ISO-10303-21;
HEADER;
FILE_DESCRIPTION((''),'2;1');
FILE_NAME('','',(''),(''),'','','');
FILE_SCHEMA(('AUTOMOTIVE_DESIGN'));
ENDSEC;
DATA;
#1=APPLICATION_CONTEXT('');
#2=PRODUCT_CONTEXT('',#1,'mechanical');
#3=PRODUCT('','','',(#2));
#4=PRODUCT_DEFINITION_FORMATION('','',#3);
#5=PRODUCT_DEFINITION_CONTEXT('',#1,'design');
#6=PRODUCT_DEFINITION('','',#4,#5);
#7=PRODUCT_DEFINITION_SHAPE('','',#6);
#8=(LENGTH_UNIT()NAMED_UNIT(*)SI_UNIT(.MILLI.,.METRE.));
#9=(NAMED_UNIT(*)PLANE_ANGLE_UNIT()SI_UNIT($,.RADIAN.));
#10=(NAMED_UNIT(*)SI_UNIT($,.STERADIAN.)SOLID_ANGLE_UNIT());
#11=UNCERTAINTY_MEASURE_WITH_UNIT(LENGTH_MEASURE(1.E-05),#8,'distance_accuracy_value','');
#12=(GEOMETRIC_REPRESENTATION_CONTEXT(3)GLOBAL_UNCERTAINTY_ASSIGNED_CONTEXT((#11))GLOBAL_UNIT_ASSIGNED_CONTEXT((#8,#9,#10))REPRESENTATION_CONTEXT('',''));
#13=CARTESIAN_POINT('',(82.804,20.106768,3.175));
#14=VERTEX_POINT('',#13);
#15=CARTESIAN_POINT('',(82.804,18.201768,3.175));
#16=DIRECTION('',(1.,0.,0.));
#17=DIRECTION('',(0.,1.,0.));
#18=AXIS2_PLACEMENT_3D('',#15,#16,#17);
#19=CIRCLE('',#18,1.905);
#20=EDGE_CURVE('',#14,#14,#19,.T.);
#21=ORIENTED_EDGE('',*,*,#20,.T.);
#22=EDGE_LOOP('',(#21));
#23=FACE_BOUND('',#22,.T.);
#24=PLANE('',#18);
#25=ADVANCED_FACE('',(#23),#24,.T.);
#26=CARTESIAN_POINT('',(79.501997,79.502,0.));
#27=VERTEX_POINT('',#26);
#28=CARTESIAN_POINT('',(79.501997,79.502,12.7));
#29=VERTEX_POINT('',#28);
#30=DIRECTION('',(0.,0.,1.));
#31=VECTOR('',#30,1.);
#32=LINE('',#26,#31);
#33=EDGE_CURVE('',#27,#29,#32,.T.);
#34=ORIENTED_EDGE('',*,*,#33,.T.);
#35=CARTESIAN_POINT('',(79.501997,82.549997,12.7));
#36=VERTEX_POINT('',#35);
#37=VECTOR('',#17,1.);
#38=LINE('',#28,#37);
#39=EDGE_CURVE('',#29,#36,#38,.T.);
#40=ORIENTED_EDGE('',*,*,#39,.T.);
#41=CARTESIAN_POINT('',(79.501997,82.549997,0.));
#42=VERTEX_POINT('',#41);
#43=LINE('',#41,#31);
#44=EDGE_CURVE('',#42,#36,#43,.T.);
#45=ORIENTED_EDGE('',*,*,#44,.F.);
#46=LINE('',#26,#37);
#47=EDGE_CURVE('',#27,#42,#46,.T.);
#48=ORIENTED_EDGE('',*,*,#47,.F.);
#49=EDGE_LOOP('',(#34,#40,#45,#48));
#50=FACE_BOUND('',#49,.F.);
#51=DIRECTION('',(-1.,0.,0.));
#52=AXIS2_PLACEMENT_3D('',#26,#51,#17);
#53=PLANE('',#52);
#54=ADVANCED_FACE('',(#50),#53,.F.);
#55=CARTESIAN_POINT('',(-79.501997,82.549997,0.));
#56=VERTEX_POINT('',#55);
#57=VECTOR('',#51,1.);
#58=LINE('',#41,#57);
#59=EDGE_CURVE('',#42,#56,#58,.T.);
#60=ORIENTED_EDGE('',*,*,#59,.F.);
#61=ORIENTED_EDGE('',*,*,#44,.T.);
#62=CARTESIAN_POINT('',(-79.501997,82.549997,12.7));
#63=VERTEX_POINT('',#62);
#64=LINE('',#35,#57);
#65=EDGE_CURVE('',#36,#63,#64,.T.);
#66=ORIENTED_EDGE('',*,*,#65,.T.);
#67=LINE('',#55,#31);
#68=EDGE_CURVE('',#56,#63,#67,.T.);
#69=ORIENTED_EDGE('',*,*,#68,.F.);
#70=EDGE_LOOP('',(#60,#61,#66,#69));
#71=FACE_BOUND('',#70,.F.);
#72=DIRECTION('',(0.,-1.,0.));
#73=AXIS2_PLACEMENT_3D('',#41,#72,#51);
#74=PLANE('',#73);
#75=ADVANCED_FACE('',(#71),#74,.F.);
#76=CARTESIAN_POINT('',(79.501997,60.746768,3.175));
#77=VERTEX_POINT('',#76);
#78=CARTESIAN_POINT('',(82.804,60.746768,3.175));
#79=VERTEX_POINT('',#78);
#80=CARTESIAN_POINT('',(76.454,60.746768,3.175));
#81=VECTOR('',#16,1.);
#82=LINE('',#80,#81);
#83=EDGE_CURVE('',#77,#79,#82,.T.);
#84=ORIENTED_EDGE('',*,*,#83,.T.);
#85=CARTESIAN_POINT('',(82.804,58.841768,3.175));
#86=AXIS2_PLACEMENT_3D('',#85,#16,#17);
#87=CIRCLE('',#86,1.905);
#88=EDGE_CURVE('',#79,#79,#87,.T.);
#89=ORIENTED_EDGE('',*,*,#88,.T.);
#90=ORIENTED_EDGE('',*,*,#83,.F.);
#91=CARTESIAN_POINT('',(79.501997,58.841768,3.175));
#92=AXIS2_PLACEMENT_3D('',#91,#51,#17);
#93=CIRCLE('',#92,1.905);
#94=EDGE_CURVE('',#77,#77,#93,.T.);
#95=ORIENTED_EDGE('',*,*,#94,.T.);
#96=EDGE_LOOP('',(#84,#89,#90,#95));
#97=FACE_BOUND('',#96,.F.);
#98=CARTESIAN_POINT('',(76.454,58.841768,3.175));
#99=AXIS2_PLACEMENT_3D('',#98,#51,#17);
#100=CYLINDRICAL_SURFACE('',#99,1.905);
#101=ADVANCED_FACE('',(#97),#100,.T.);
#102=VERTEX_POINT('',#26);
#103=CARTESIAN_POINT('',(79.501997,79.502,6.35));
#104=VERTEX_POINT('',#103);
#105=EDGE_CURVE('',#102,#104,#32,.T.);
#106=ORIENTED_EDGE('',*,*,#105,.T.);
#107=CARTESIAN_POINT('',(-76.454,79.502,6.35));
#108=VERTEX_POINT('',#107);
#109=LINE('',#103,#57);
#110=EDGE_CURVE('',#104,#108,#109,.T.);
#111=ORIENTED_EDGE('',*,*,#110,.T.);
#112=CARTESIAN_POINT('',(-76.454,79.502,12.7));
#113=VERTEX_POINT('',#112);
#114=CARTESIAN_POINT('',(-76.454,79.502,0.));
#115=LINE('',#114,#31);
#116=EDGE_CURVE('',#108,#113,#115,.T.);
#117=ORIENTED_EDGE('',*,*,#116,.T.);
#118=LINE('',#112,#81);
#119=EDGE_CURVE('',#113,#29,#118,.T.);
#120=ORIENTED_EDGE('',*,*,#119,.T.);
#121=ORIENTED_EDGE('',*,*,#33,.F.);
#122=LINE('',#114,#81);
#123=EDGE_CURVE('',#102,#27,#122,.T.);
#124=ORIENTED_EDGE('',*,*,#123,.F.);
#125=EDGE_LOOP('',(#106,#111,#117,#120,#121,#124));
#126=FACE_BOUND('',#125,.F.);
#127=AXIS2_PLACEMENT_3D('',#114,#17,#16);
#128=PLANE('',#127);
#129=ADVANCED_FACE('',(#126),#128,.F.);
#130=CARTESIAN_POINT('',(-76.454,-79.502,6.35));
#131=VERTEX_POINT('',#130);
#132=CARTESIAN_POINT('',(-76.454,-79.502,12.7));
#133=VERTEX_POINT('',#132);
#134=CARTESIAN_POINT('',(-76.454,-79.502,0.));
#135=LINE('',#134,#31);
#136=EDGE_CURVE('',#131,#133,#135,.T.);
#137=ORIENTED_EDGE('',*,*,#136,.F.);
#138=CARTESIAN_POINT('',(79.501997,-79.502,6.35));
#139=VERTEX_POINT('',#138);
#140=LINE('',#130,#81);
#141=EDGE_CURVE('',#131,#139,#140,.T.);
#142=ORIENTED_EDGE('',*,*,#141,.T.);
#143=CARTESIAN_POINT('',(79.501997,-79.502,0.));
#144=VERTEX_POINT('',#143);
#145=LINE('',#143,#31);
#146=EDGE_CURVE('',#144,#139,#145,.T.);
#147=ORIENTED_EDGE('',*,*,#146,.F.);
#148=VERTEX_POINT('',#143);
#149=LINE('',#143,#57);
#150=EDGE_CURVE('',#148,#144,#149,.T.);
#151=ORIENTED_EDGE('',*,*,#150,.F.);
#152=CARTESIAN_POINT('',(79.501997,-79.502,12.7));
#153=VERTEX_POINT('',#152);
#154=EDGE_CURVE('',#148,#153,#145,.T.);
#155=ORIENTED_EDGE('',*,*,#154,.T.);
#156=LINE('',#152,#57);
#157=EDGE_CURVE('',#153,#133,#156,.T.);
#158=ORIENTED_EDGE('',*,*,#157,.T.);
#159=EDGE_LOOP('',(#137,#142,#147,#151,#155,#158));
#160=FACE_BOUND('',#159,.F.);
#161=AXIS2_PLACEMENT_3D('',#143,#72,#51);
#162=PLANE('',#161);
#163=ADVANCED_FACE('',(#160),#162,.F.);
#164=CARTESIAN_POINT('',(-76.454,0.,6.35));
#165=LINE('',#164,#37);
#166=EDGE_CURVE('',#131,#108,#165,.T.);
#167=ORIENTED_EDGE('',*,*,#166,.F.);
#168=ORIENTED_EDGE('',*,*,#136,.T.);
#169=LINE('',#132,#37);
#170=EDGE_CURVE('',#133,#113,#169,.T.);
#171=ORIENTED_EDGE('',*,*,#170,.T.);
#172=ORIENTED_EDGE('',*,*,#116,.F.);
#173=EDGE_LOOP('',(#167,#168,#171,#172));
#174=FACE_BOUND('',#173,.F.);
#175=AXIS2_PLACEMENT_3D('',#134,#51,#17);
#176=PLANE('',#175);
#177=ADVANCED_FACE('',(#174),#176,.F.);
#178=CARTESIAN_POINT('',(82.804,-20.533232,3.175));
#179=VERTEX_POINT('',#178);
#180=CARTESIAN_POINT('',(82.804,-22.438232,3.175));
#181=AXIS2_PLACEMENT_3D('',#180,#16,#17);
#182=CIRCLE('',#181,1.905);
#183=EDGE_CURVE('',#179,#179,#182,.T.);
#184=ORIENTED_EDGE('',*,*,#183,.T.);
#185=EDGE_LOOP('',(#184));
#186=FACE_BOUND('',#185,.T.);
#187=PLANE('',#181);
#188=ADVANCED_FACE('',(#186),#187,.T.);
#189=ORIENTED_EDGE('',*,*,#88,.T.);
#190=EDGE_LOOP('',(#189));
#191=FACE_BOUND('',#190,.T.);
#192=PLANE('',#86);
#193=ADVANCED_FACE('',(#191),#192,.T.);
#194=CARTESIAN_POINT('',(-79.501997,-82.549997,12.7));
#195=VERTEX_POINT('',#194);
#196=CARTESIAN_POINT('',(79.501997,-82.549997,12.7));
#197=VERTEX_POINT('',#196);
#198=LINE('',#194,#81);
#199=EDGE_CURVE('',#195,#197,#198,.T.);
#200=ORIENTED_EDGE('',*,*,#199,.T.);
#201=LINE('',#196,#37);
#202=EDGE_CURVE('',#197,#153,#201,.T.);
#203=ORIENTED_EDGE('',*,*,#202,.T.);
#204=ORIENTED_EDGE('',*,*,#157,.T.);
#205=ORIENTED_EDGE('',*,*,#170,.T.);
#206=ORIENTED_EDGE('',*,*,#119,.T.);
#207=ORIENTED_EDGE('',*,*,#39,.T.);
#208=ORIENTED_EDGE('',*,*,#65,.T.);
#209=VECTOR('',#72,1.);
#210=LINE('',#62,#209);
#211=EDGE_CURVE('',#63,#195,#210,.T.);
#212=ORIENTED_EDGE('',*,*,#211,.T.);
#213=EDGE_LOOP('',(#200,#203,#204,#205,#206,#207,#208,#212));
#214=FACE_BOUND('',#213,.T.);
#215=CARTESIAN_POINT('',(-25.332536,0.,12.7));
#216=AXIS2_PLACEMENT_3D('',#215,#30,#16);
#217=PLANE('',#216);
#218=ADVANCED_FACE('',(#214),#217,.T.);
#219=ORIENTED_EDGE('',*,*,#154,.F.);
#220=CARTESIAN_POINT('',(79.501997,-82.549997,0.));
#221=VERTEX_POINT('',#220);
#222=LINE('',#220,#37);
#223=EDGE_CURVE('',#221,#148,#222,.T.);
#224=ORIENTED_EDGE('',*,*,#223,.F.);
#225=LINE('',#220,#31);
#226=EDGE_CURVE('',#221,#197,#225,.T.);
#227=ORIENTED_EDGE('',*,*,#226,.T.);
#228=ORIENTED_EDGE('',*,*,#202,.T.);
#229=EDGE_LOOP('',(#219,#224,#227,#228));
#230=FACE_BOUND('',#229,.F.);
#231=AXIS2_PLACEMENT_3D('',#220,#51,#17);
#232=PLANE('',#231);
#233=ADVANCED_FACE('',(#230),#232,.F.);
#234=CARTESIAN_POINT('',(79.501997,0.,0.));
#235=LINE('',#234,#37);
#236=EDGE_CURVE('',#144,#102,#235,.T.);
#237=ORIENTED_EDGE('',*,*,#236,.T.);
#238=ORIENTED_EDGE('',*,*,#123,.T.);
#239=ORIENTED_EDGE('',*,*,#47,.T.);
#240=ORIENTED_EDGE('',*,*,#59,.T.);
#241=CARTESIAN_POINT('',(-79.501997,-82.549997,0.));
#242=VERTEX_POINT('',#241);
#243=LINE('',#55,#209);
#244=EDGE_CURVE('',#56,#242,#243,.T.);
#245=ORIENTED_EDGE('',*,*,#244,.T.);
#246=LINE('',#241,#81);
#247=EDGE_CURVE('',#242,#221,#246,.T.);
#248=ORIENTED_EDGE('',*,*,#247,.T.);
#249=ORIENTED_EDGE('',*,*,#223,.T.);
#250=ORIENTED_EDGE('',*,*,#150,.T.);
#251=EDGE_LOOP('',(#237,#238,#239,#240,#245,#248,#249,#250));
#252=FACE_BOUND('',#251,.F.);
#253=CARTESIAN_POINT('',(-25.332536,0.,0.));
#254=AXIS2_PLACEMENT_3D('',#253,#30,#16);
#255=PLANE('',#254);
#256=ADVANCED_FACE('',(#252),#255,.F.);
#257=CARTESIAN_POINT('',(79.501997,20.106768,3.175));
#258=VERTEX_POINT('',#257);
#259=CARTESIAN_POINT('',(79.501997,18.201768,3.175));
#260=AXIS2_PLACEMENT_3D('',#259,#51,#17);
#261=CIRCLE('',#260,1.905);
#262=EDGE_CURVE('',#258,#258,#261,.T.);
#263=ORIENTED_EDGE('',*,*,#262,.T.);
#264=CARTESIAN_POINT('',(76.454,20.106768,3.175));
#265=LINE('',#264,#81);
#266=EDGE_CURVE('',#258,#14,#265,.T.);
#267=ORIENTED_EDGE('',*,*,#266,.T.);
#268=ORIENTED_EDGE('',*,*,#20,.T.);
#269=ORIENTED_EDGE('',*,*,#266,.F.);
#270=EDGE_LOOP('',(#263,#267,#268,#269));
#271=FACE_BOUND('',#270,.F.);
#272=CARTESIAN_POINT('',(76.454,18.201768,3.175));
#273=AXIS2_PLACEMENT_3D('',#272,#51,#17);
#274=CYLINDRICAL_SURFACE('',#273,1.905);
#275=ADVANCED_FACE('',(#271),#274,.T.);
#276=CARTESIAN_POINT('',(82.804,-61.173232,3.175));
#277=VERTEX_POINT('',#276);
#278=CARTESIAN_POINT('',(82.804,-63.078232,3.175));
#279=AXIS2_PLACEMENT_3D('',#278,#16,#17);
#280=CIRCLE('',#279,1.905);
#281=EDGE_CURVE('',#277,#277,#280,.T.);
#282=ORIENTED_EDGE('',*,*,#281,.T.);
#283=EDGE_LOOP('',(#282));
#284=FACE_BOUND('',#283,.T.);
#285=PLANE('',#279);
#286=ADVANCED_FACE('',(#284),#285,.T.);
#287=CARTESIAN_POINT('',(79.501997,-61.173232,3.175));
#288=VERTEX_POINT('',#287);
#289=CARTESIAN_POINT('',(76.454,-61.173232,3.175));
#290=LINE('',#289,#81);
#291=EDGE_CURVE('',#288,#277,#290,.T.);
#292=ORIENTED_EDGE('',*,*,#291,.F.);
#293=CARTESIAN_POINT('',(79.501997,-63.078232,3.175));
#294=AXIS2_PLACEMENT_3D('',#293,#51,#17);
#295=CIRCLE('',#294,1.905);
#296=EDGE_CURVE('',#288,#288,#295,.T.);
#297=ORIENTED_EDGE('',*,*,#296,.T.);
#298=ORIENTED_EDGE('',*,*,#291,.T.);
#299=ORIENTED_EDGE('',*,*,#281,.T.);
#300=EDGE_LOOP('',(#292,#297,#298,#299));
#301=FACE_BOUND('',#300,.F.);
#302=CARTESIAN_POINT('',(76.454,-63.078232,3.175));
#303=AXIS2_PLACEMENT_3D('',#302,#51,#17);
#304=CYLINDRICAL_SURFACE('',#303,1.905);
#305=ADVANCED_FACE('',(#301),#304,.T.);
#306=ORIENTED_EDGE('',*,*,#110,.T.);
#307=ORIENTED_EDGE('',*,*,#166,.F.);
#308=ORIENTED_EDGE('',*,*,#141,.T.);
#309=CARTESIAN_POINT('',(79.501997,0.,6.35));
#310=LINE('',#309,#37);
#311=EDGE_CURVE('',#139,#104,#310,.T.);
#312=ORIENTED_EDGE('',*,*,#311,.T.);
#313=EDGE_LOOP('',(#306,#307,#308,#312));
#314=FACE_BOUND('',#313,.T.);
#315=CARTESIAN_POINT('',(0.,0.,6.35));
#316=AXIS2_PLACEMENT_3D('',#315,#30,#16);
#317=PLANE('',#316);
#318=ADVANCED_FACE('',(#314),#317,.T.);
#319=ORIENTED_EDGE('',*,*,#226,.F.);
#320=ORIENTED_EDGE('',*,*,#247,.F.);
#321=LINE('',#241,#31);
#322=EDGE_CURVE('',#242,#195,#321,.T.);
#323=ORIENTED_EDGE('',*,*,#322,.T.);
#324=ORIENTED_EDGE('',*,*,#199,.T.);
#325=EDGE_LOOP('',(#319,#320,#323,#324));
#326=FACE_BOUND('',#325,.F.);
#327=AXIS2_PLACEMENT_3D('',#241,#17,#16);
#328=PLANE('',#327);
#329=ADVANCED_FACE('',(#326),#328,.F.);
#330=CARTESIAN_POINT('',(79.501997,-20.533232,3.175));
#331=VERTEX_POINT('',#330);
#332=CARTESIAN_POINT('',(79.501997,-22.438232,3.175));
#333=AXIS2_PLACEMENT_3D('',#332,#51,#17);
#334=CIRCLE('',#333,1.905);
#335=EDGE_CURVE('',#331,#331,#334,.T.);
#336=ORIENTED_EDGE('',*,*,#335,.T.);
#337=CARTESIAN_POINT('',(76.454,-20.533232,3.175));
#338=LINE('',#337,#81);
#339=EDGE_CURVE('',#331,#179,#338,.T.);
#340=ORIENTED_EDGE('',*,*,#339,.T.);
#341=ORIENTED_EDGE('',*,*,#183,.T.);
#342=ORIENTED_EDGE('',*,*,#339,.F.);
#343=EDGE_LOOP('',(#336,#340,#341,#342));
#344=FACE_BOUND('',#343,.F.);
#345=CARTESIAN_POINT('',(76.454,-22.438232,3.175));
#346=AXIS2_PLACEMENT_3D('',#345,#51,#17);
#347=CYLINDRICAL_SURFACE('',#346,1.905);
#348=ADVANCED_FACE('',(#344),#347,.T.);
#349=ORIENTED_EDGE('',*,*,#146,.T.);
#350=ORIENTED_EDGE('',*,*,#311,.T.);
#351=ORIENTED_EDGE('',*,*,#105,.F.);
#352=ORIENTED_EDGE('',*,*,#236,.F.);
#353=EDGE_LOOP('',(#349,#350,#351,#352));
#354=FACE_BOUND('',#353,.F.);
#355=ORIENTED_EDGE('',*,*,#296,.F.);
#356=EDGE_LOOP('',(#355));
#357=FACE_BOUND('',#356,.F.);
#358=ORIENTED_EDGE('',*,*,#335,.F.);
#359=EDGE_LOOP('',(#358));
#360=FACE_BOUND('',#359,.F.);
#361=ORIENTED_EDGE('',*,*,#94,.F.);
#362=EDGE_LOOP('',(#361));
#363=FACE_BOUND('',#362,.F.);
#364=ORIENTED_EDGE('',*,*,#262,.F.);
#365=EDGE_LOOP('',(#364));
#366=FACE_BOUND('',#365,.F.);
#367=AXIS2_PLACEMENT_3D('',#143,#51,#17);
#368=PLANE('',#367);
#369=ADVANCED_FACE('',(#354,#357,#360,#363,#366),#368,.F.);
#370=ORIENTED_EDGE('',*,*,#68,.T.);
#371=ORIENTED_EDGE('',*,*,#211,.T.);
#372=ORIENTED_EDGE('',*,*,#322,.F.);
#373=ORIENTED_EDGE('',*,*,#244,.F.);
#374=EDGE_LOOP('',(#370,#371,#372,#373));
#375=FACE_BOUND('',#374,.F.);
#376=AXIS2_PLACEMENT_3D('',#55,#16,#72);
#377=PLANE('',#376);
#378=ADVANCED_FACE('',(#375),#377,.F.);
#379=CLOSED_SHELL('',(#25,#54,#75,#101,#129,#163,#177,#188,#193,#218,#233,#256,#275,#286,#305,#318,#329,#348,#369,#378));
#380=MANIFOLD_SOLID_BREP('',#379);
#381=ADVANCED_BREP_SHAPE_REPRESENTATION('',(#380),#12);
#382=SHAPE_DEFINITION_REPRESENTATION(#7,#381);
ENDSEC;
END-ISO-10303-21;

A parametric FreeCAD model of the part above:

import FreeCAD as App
import Part
import Sketcher

V = App.Vector
Q = App.Units.Quantity

doc = App.newDocument("Part")
params = doc.addObject("Spreadsheet::Sheet", "Params")
for row, (alias, value) in enumerate([
    ("sketch1_width", "6.02 in"),
    ("sketch1_height", "6.26 in"),
    ("pad1_length", "0.25 in"),
    ("sketch2_width", "6.1399999 in"),
    ("sketch2_height", "6.26 in"),
    ("sketch2_height2", "0.1199999 in"),
    ("pad2_length", "0.5 in"),
    ("sketch3_diameter", "0.15 in"),
    ("pad3_length", "0.25 in"),
    ("sketch4_width", "0.1199999 in"),
    ("sketch4_height", "6.26 in"),
    ("pad4_length", "0.25 in"),
], start=1):
    params.set(f"A{row}", alias)
    params.set(f"B{row}", "=" + value)
    params.setAlias(f"B{row}", alias)

body = doc.addObject("PartDesign::Body", "Body")

sketch1 = body.newObject("Sketcher::SketchObject", "Sketch")
sketch1.AttachmentSupport = (doc.getObject("XY_Plane"), [""])
sketch1.MapMode = "FlatFace"
sketch1.addGeometry([
    Part.LineSegment(V(-76, 80, 0), V(-76, -80, 0)),
    Part.LineSegment(V(-76, -80, 0), V(76, -80, 0)),
    Part.LineSegment(V(76, -80, 0), V(76, 80, 0)),
    Part.LineSegment(V(76, 80, 0), V(-76, 80, 0)),
], False)
sketch1.addConstraint([
    Sketcher.Constraint("Coincident", 0, 2, 1, 1),
    Sketcher.Constraint("Coincident", 1, 2, 2, 1),
    Sketcher.Constraint("Coincident", 2, 2, 3, 1),
    Sketcher.Constraint("Coincident", 3, 2, 0, 1),
    Sketcher.Constraint("Vertical", 0),
    Sketcher.Constraint("Horizontal", 1),
    Sketcher.Constraint("Vertical", 2),
    Sketcher.Constraint("Horizontal", 3),
    Sketcher.Constraint("Symmetric", 0, 2, 2, 2, -1, 1),
    Sketcher.Constraint("DistanceX", 1, 1, 1, 2, Q("6.02 in")),
    Sketcher.Constraint("DistanceY", 0, 2, 0, 1, Q("6.26 in")),
])
sketch1.setExpression("Constraints[9]", "Params.sketch1_width")
sketch1.setExpression("Constraints[10]", "Params.sketch1_height")
pad1 = body.newObject("PartDesign::Pad", "Pad")
pad1.Profile = sketch1
pad1.setExpression("Length", "Params.pad1_length")

sketch2 = body.newObject("Sketcher::SketchObject", "Sketch001")
sketch2.AttachmentSupport = (doc.getObject("XY_Plane"), [""])
sketch2.MapMode = "FlatFace"
sketch2.addGeometry([
    Part.LineSegment(V(79.5, -79.5, 0), V(-76.5, -79.5, 0)),
    Part.LineSegment(V(-76.5, -79.5, 0), V(-76.5, 79.5, 0)),
    Part.LineSegment(V(-76.5, 79.5, 0), V(79.5, 79.5, 0)),
    Part.LineSegment(V(79.5, 79.5, 0), V(79.5, 82.5, 0)),
    Part.LineSegment(V(79.5, 82.5, 0), V(-79.5, 82.5, 0)),
    Part.LineSegment(V(-79.5, 82.5, 0), V(-79.5, -82.5, 0)),
    Part.LineSegment(V(-79.5, -82.5, 0), V(79.5, -82.5, 0)),
    Part.LineSegment(V(79.5, -82.5, 0), V(79.5, -79.5, 0)),
], False)
sketch2.addConstraint([
    Sketcher.Constraint("Coincident", 0, 2, 1, 1),
    Sketcher.Constraint("Coincident", 1, 2, 2, 1),
    Sketcher.Constraint("Coincident", 2, 2, 3, 1),
    Sketcher.Constraint("Coincident", 3, 2, 4, 1),
    Sketcher.Constraint("Coincident", 4, 2, 5, 1),
    Sketcher.Constraint("Coincident", 5, 2, 6, 1),
    Sketcher.Constraint("Coincident", 6, 2, 7, 1),
    Sketcher.Constraint("Coincident", 7, 2, 0, 1),
    Sketcher.Constraint("Horizontal", 0),
    Sketcher.Constraint("Vertical", 1),
    Sketcher.Constraint("Horizontal", 2),
    Sketcher.Constraint("Vertical", 3),
    Sketcher.Constraint("Horizontal", 4),
    Sketcher.Constraint("Vertical", 5),
    Sketcher.Constraint("Horizontal", 6),
    Sketcher.Constraint("Vertical", 7),
    Sketcher.Constraint("Symmetric", 3, 2, 5, 2, -1, 1),
    Sketcher.Constraint("Symmetric", 2, 2, 7, 2, -1),
    Sketcher.Constraint("DistanceX", 0, 2, 0, 1, Q("6.1399999 in")),
    Sketcher.Constraint("DistanceY", 1, 1, 1, 2, Q("6.26 in")),
    Sketcher.Constraint("DistanceY", 3, 1, 3, 2, Q("0.1199999 in")),
    Sketcher.Constraint("DistanceX", 0, 2, -1, 1, Q("3.01 in")),
])
sketch2.setExpression("Constraints[18]", "Params.sketch2_width")
sketch2.setExpression("Constraints[19]", "Params.sketch2_height")
sketch2.setExpression("Constraints[20]", "Params.sketch2_height2")
pad2 = body.newObject("PartDesign::Pad", "Pad001")
pad2.Profile = sketch2
pad2.setExpression("Length", "Params.pad2_length")

sketch3 = body.newObject("Sketcher::SketchObject", "Sketch002")
sketch3.AttachmentSupport = (doc.getObject("YZ_Plane"), [""])
sketch3.MapMode = "FlatFace"
sketch3.AttachmentOffset = App.Placement(V(0, 0, 3.01 * 25.4), App.Rotation())
sketch3.addGeometry([
    Part.Circle(V(-63.1, 3.2, 0), V(0, 0, 1), 1.9),
    Part.Circle(V(-22.4, 3.2, 0), V(0, 0, 1), 1.9),
    Part.Circle(V(18.2, 3.2, 0), V(0, 0, 1), 1.9),
    Part.Circle(V(58.8, 3.2, 0), V(0, 0, 1), 1.9),
], False)
sketch3.addConstraint([
    Sketcher.Constraint("Equal", 0, 1),
    Sketcher.Constraint("Equal", 1, 2),
    Sketcher.Constraint("Equal", 2, 3),
    Sketcher.Constraint("Horizontal", 0, 3, 1, 3),
    Sketcher.Constraint("Horizontal", 1, 3, 2, 3),
    Sketcher.Constraint("Horizontal", 2, 3, 3, 3),
    Sketcher.Constraint("Diameter", 0, Q("0.15 in")),
    Sketcher.Constraint("DistanceX", 0, 3, 1, 3, Q("1.6 in")),
    Sketcher.Constraint("DistanceX", 1, 3, 2, 3, Q("1.6 in")),
    Sketcher.Constraint("DistanceX", 2, 3, 3, 3, Q("1.6 in")),
    Sketcher.Constraint("DistanceY", -1, 1, 0, 3, Q("0.125 in")),
    Sketcher.Constraint("DistanceX", 1, 3, -1, 1, 22.438232),
])
sketch3.setExpression("Constraints[6]", "Params.sketch3_diameter")
pad3 = body.newObject("PartDesign::Pad", "Pad002")
pad3.Profile = sketch3
pad3.setExpression("Length", "Params.pad3_length")

sketch4 = body.newObject("Sketcher::SketchObject", "Sketch003")
sketch4.AttachmentSupport = (doc.getObject("XY_Plane"), [""])
sketch4.MapMode = "FlatFace"
sketch4.addGeometry([
    Part.LineSegment(V(76.5, 79.5, 0), V(76.5, -79.5, 0)),
    Part.LineSegment(V(76.5, -79.5, 0), V(79.5, -79.5, 0)),
    Part.LineSegment(V(79.5, -79.5, 0), V(79.5, 79.5, 0)),
    Part.LineSegment(V(79.5, 79.5, 0), V(76.5, 79.5, 0)),
], False)
sketch4.addConstraint([
    Sketcher.Constraint("Coincident", 0, 2, 1, 1),
    Sketcher.Constraint("Coincident", 1, 2, 2, 1),
    Sketcher.Constraint("Coincident", 2, 2, 3, 1),
    Sketcher.Constraint("Coincident", 3, 2, 0, 1),
    Sketcher.Constraint("Vertical", 0),
    Sketcher.Constraint("Horizontal", 1),
    Sketcher.Constraint("Vertical", 2),
    Sketcher.Constraint("Horizontal", 3),
    Sketcher.Constraint("DistanceX", 1, 1, 1, 2, Q("0.1199999 in")),
    Sketcher.Constraint("DistanceY", 0, 2, 0, 1, Q("6.26 in")),
    Sketcher.Constraint("DistanceX", -1, 1, 0, 2, Q("3.01 in")),
    Sketcher.Constraint("DistanceY", 0, 2, -1, 1, Q("3.13 in")),
])
sketch4.setExpression("Constraints[8]", "Params.sketch4_width")
sketch4.setExpression("Constraints[9]", "Params.sketch4_height")
pad4 = body.newObject("PartDesign::Pad", "Pad003")
pad4.Profile = sketch4
pad4.setExpression("Length", "Params.pad4_length")

doc.recompute()
